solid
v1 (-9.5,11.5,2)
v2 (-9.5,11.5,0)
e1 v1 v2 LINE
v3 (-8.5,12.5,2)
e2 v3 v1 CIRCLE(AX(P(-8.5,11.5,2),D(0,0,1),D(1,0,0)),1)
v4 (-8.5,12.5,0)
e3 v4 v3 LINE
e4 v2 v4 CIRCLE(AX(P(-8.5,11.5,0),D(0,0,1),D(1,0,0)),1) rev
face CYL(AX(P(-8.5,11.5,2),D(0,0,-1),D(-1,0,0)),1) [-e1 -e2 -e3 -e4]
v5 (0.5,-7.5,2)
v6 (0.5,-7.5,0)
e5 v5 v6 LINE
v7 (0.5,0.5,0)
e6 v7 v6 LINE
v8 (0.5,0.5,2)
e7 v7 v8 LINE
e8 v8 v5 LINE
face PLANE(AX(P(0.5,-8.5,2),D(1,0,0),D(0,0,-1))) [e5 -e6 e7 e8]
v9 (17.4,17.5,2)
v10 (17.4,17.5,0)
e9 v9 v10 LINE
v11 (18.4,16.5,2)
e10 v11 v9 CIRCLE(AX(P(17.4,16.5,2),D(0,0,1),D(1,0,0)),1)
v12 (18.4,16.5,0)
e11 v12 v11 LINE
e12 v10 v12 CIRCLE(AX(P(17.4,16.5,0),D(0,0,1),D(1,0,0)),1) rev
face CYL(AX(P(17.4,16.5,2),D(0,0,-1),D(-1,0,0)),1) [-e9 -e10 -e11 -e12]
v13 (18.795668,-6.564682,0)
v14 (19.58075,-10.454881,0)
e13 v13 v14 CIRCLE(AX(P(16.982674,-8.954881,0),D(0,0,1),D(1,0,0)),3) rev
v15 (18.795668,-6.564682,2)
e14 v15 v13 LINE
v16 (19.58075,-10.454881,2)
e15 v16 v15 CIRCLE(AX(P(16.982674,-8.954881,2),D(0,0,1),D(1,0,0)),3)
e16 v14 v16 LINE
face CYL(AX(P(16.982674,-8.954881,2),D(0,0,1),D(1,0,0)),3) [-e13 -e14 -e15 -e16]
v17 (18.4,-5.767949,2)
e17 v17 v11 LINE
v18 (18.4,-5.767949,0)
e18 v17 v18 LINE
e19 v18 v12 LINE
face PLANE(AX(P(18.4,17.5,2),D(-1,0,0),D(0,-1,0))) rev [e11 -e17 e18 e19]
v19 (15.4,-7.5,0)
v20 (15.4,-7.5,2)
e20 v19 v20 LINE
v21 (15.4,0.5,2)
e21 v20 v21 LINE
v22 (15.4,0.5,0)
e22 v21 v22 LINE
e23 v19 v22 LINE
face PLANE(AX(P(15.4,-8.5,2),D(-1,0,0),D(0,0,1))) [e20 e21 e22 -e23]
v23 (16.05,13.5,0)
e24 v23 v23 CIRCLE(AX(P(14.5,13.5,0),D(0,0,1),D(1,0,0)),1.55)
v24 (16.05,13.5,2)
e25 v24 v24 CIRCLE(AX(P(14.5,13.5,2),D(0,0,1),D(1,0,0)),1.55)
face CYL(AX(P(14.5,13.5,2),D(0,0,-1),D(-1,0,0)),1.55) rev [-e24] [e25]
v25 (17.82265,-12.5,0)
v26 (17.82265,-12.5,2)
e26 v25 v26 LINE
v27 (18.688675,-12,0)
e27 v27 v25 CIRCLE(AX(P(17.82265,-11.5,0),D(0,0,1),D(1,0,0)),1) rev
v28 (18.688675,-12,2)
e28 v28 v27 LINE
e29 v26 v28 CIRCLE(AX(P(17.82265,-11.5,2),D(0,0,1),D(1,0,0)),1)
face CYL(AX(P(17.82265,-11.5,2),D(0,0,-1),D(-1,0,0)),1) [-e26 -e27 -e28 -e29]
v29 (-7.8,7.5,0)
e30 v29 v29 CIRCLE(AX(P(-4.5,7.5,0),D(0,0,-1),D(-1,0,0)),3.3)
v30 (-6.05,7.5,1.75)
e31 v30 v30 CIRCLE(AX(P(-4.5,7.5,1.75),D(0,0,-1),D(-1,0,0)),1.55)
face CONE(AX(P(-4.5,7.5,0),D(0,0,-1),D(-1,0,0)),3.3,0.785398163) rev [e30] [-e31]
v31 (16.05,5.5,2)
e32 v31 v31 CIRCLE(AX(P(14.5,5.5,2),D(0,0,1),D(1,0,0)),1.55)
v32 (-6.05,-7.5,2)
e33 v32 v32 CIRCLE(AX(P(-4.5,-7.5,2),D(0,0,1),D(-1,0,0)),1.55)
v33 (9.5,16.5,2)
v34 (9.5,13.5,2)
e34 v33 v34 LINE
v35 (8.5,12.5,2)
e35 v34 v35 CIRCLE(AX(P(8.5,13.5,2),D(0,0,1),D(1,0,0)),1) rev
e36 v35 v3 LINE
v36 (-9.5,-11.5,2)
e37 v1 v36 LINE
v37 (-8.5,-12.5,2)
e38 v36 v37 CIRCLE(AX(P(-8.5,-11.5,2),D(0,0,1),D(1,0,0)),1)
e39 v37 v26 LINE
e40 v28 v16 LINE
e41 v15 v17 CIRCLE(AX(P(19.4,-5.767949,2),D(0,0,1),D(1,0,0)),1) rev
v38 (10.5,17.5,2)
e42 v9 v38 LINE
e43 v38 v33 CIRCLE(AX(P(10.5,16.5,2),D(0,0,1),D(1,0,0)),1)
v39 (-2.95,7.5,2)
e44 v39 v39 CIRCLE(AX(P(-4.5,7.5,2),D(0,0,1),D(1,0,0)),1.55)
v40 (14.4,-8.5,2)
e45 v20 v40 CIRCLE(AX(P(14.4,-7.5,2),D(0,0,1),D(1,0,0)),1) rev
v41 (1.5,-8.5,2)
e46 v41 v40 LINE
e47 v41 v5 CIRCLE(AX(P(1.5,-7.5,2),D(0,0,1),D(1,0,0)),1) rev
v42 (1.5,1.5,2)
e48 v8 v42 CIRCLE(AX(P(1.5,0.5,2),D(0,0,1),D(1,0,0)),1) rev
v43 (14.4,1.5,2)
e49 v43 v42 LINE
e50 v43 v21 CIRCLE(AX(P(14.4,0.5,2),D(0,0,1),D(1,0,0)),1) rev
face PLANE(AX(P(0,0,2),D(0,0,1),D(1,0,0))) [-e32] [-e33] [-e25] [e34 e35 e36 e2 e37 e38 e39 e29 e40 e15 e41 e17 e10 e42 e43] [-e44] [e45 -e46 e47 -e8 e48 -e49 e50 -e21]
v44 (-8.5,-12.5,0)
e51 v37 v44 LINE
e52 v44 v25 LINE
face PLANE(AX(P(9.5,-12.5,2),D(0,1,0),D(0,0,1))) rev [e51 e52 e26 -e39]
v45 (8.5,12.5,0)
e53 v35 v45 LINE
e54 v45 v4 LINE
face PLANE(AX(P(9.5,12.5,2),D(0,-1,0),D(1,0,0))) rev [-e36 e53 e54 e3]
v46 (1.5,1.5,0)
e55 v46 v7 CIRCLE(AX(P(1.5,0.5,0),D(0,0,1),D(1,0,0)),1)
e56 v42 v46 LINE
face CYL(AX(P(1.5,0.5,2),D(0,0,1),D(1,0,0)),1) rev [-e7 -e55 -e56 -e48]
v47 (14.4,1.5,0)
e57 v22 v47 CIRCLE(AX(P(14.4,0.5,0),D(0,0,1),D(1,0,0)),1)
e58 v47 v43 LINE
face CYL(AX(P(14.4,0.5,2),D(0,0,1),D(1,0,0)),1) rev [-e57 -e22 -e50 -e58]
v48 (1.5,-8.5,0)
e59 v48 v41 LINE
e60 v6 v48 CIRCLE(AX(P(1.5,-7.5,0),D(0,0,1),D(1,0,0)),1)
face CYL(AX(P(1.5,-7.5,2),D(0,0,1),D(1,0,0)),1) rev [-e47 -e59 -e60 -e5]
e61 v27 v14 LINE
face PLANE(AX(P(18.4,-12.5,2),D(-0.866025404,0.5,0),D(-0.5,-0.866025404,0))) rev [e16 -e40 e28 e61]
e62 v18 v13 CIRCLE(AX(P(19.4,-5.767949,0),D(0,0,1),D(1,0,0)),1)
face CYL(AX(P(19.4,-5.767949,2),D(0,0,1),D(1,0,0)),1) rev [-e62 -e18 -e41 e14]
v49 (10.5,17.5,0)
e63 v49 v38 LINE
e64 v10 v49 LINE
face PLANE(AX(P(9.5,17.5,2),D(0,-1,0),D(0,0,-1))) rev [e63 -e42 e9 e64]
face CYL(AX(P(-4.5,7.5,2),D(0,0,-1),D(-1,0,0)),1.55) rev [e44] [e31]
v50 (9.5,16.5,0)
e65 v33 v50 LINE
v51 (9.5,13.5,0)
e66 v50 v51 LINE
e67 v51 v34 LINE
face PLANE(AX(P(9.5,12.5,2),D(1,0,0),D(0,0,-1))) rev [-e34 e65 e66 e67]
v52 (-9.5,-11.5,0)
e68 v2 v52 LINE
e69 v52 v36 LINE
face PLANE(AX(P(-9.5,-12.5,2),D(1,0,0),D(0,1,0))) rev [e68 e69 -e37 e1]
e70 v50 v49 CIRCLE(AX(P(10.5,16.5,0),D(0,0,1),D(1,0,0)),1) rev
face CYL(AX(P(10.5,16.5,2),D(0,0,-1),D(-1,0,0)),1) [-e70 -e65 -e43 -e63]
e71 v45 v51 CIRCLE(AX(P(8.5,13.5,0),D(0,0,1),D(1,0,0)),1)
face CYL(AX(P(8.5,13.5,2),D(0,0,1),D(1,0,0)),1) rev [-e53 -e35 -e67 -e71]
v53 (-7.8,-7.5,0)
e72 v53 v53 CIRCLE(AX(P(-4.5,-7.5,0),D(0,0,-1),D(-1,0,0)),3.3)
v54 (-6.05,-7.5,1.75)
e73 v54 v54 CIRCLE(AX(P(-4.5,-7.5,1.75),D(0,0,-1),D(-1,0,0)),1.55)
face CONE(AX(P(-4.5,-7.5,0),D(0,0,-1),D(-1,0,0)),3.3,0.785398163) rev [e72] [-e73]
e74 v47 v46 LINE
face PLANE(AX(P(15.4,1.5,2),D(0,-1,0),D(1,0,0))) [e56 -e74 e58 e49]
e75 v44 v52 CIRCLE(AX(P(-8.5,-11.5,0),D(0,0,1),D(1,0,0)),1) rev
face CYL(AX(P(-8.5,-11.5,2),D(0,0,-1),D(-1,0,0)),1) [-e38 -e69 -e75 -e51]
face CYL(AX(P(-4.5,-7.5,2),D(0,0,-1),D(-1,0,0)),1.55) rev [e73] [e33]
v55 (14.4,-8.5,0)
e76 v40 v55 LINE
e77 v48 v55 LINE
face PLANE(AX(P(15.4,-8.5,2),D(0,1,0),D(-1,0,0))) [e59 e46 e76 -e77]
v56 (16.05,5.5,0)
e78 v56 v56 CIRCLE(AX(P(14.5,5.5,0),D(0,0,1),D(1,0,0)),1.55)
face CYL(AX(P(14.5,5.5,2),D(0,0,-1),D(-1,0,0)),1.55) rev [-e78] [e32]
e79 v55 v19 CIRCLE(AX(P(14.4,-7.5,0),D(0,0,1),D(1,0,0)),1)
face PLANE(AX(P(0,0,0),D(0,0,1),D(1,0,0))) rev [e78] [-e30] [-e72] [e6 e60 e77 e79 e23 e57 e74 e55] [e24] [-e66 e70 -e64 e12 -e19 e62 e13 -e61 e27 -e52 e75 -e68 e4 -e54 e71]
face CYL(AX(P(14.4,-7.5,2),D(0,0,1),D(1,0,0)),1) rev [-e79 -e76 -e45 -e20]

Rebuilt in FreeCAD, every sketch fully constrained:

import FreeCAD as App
import Part
import Sketcher

V = App.Vector
Q = App.Units.Quantity


def edges_at(feature, points):
    """Names of the edges that pass closest to the given points."""
    edges = feature.Shape.Edges
    near = lambda p: min(range(len(edges)), key=lambda i: edges[i].distToShape(Part.Vertex(*p))[0])
    return sorted({f"Edge{near(p) + 1}" for p in points})

doc = App.newDocument("Part")
body = doc.addObject("PartDesign::Body", "Body")

# Sketch on XY plane
sketch1 = body.newObject("Sketcher::SketchObject", "Sketch")
sketch1.AttachmentSupport = (doc.getObject("XY_Plane"), [""])
sketch1.MapMode = "FlatFace"
sketch1.addGeometry([
    Part.LineSegment(V(-9.5, -12.5, 0), V(18.4, -12.5, 0)),  # 0
    Part.LineSegment(V(18.4, -12.5, 0), V(22.7, -5, 0)),  # 1
    Part.LineSegment(V(22.7, -5, 0), V(18.4, -7.5, 0)),  # 2
    Part.LineSegment(V(18.4, -7.5, 0), V(18.4, 17.5, 0)),  # 3
    Part.LineSegment(V(18.4, 17.5, 0), V(9.5, 17.5, 0)),  # 4
    Part.LineSegment(V(9.5, 17.5, 0), V(9.5, 12.5, 0)),  # 5
    Part.LineSegment(V(9.5, 12.5, 0), V(-9.5, 12.5, 0)),  # 6
    Part.LineSegment(V(-9.5, 12.5, 0), V(-9.5, -12.5, 0)),  # 7
    Part.LineSegment(V(0.5, -8.5, 0), V(0.5, 1.5, 0)),  # 8
    Part.LineSegment(V(0.5, 1.5, 0), V(15.4, 1.5, 0)),  # 9
    Part.LineSegment(V(15.4, 1.5, 0), V(15.4, -8.5, 0)),  # 10
    Part.LineSegment(V(15.4, -8.5, 0), V(0.5, -8.5, 0)),  # 11
    Part.Circle(V(-4.5, -7.5, 0), V(0, 0, 1), 1.6),  # 12
    Part.Circle(V(14.5, 5.5, 0), V(0, 0, 1), 1.6),  # 13
    Part.Circle(V(14.5, 13.5, 0), V(0, 0, 1), 1.6),  # 14
    Part.Circle(V(-4.5, 7.5, 0), V(0, 0, 1), 1.6),  # 15
], False)
sketch1.addConstraint([
    Sketcher.Constraint("Coincident", 0, 2, 1, 1),
    Sketcher.Constraint("Coincident", 1, 2, 2, 1),
    Sketcher.Constraint("Coincident", 2, 2, 3, 1),
    Sketcher.Constraint("Coincident", 3, 2, 4, 1),
    Sketcher.Constraint("Coincident", 4, 2, 5, 1),
    Sketcher.Constraint("Coincident", 5, 2, 6, 1),
    Sketcher.Constraint("Coincident", 6, 2, 7, 1),
    Sketcher.Constraint("Coincident", 7, 2, 0, 1),
    Sketcher.Constraint("Coincident", 8, 2, 9, 1),
    Sketcher.Constraint("Coincident", 9, 2, 10, 1),
    Sketcher.Constraint("Coincident", 10, 2, 11, 1),
    Sketcher.Constraint("Coincident", 11, 2, 8, 1),
    Sketcher.Constraint("Horizontal", 0),
    Sketcher.Constraint("Vertical", 3),
    Sketcher.Constraint("Horizontal", 4),
    Sketcher.Constraint("Vertical", 5),
    Sketcher.Constraint("Horizontal", 6),
    Sketcher.Constraint("Vertical", 7),
    Sketcher.Constraint("Vertical", 8),
    Sketcher.Constraint("Horizontal", 9),
    Sketcher.Constraint("Vertical", 10),
    Sketcher.Constraint("Horizontal", 11),
    Sketcher.Constraint("Equal", 12, 13),
    Sketcher.Constraint("Equal", 13, 14),
    Sketcher.Constraint("Equal", 14, 15),
    Sketcher.Constraint("Symmetric", 5, 2, 7, 2, -1, 1),
    Sketcher.Constraint("Symmetric", 12, 3, 15, 3, -1),
    Sketcher.Constraint("Horizontal", 12, 3, 2, 2),
    Sketcher.Constraint("Vertical", 13, 3, 14, 3),
    Sketcher.Constraint("Vertical", 0, 2, 2, 2),
    Sketcher.Constraint("Equal", 3, 7),
    Sketcher.Constraint("Diameter", 12, Q("3.1 mm")),
    Sketcher.Constraint("DistanceX", 6, 2, 6, 1, Q("19 mm")),
    Sketcher.Constraint("DistanceY", 3, 1, 3, 2, Q("25 mm")),
    Sketcher.Constraint("DistanceY", 5, 2, 5, 1, Q("5 mm")),
    Sketcher.Constraint("DistanceY", 8, 1, 8, 2, Q("10 mm")),
    Sketcher.Constraint("Angle", 1, Q("60 deg")),
    Sketcher.Constraint("Angle", 2, Q("-150 deg")),
    Sketcher.Constraint("DistanceX", 0, 1, 0, 2, Q("27.9 mm")),
    Sketcher.Constraint("DistanceX", 9, 1, 9, 2, Q("14.9 mm")),
    Sketcher.Constraint("DistanceX", 12, 3, 13, 3, Q("19 mm")),
    Sketcher.Constraint("DistanceY", 12, 3, 13, 3, Q("13 mm")),
    Sketcher.Constraint("DistanceY", 13, 3, 14, 3, Q("8 mm")),
    Sketcher.Constraint("DistanceX", 4, 2, 14, 3, Q("5 mm")),
    Sketcher.Constraint("DistanceX", 15, 3, 8, 2, Q("5 mm")),
    Sketcher.Constraint("DistanceY", 8, 2, 15, 3, Q("6 mm")),
])
pad1 = body.newObject("PartDesign::Pad", "Pad")
pad1.Profile = sketch1
pad1.Length = 2
doc.recompute()

fillet = body.newObject("PartDesign::Fillet", "Fillet")
fillet.Base = (pad1, edges_at(pad1, [
    (-9.5, 12.5, 1),
    (9.5, 12.5, 1),
    (9.5, 17.5, 1),
    (18.4, 17.5, 1),
    (18.4, -7.5, 1),
    (18.4, -12.5, 1),
    (-9.5, -12.5, 1),
    (0.5, 1.5, 1),
    (0.5, -8.5, 1),
    (15.4, -8.5, 1),
    (15.4, 1.5, 1),
]))
fillet.Radius = 1

# Sketch on YZ plane
sketch2 = body.newObject("Sketcher::SketchObject", "Sketch001")
sketch2.AttachmentSupport = (doc.getObject("YZ_Plane"), [""])
sketch2.MapMode = "FlatFace"
sketch2.AttachmentOffset = App.Placement(V(0, 0, -4.5), App.Rotation())
sketch2.addGeometry([
    Part.LineSegment(V(7.5, 2, 0), V(7.5, 0, 0)),  # 0
    Part.LineSegment(V(7.5, 0, 0), V(10.8, 0, 0)),  # 1
    Part.LineSegment(V(10.8, 0, 0), V(9.05, 1.75, 0)),  # 2
    Part.LineSegment(V(9.05, 1.75, 0), V(9.05, 2, 0)),  # 3
    Part.LineSegment(V(9.05, 2, 0), V(7.5, 2, 0)),  # 4
], False)
sketch2.addGeometry(Part.LineSegment(V(7.5, 0, 0), V(7.5, 2, 0)), True)  # axis
sketch2.addConstraint([
    Sketcher.Constraint("Coincident", 0, 2, 1, 1),
    Sketcher.Constraint("Coincident", 1, 2, 2, 1),
    Sketcher.Constraint("Coincident", 2, 2, 3, 1),
    Sketcher.Constraint("Coincident", 3, 2, 4, 1),
    Sketcher.Constraint("Coincident", 4, 2, 0, 1),
    Sketcher.Constraint("Vertical", 0),
    Sketcher.Constraint("Horizontal", 1),
    Sketcher.Constraint("Vertical", 3),
    Sketcher.Constraint("Horizontal", 4),
    Sketcher.Constraint("Vertical", 5),
    Sketcher.Constraint("Coincident", 5, 1, 0, 2),
    Sketcher.Constraint("PointOnObject", 0, 2, -1),
    Sketcher.Constraint("Horizontal", 3, 2, 5, 2),
    Sketcher.Constraint("DistanceY", 0, 2, 0, 1, Q("2 mm")),
    Sketcher.Constraint("Angle", 2, Q("135 deg")),
    Sketcher.Constraint("DistanceX", 1, 1, 1, 2, Q("3.3 mm")),
    Sketcher.Constraint("DistanceX", 4, 2, 4, 1, Q("1.55 mm")),
    Sketcher.Constraint("DistanceX", -1, 1, 0, 2, Q("7.5 mm")),
])
groove = body.newObject("PartDesign::Groove", "Groove")
groove.Profile = sketch2
groove.ReferenceAxis = (sketch2, ["Axis0"])
groove.Angle = 360
doc.recompute()

linearpattern = body.newObject("PartDesign::LinearPattern", "LinearPattern")
linearpattern.Originals = [groove]
linearpattern.Direction = (doc.getObject("Y_Axis"), [""])
linearpattern.Mode = "offset"
linearpattern.Offset = 15
linearpattern.Occurrences = 2
linearpattern.Reversed = True
body.Tip = linearpattern
doc.recompute()

fillet2 = body.newObject("PartDesign::Fillet", "Fillet001")
fillet2.Base = (linearpattern, edges_at(linearpattern, [(22.73, -5, 1)]))
fillet2.Radius = 3

doc.recompute()
